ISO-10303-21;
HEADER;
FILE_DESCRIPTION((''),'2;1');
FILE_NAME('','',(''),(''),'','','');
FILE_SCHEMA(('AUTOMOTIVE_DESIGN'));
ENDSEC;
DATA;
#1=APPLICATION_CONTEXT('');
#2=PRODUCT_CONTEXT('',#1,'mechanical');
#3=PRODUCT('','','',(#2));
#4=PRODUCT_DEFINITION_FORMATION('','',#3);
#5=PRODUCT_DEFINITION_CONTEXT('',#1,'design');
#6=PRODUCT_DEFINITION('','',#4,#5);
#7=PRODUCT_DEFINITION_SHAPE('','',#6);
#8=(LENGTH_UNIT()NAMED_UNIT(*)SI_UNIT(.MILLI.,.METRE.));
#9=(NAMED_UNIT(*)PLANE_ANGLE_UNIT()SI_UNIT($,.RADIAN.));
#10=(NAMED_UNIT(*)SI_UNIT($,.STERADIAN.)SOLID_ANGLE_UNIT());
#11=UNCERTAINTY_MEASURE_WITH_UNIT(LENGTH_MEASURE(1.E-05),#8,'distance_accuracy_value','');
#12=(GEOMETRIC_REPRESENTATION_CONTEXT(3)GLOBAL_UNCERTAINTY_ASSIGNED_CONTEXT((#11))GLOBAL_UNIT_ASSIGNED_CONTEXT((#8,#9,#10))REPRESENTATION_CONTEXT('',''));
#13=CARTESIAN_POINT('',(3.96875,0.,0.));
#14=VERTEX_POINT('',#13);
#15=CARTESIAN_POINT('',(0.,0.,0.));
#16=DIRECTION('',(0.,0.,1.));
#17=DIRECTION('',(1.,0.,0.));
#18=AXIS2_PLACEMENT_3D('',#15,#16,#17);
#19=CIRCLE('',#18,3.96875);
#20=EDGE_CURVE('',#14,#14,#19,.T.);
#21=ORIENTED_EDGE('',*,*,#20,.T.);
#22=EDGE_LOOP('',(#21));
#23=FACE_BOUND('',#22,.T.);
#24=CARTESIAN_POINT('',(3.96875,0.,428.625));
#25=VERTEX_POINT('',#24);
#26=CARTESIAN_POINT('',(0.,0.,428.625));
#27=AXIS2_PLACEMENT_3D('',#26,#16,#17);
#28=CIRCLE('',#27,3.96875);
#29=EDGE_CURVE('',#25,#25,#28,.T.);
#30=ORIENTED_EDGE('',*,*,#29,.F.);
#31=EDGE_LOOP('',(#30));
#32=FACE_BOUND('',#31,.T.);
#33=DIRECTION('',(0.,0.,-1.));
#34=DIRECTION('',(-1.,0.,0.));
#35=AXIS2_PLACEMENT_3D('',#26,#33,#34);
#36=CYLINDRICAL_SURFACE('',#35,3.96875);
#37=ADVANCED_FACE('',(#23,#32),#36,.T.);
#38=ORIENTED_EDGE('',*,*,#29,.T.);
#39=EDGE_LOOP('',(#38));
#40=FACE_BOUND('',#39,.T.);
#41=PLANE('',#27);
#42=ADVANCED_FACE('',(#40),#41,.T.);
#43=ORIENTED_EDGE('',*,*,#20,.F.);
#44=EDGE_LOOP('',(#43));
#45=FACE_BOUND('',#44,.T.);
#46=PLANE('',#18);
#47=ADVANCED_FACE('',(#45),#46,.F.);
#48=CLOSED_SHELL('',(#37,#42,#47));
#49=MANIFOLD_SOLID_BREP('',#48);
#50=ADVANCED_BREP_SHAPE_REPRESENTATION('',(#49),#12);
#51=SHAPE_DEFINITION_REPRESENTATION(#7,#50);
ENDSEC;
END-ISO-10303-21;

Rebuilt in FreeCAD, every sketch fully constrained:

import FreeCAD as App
import Part
import Sketcher

V = App.Vector
Q = App.Units.Quantity

doc = App.newDocument("Part")
params = doc.addObject("Spreadsheet::Sheet", "Params")
for row, (alias, value) in enumerate([
    ("sketch1_diameter", "0.3125 in"),
    ("pad1_length", "16.875 in"),
], start=1):
    params.set(f"A{row}", alias)
    params.set(f"B{row}", "=" + value)
    params.setAlias(f"B{row}", alias)

body = doc.addObject("PartDesign::Body", "Body")

sketch1 = body.newObject("Sketcher::SketchObject", "Sketch")
sketch1.AttachmentSupport = (doc.getObject("XY_Plane"), [""])
sketch1.MapMode = "FlatFace"
sketch1.addGeometry(Part.Circle(V(0, 0, 0), V(0, 0, 1), 4), False)
sketch1.addConstraint([
    Sketcher.Constraint("Coincident", 0, 3, -1, 1),
    Sketcher.Constraint("Diameter", 0, Q("0.3125 in")),
])
sketch1.setExpression("Constraints[1]", "Params.sketch1_diameter")
pad1 = body.newObject("PartDesign::Pad", "Pad")
pad1.Profile = sketch1
pad1.setExpression("Length", "Params.pad1_length")

doc.recompute()
